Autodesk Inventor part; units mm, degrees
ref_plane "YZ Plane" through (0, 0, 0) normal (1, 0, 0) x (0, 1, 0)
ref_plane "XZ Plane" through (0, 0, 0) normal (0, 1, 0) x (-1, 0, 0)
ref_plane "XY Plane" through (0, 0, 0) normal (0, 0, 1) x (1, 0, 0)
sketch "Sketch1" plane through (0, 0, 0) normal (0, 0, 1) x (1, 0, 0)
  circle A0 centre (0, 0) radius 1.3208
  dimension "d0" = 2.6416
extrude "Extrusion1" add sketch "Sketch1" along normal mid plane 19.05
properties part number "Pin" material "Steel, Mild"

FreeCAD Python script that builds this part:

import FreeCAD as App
import Part
import Sketcher
from FreeCAD import Vector
Q = App.Units.Quantity

doc = App.newDocument("Part")
body = doc.addObject("PartDesign::Body", "Body")

sketch1 = body.newObject("Sketcher::SketchObject", "Sketch")
sketch1.AttachmentSupport = (doc.getObject("XY_Plane"), [""])
sketch1.MapMode = "FlatFace"
sketch1.addGeometry(Part.Circle(Vector(0, 0, 0), Vector(0, 0, 1), 1.3), False)
sketch1.addConstraint([
    Sketcher.Constraint("Coincident", 0, 3, -1, 1),
    Sketcher.Constraint("Diameter", 0, Q("0.104 in")),
])
pad1 = body.newObject("PartDesign::Pad", "Pad")
pad1.Profile = sketch1
pad1.Length = Q("0.75 in")
pad1.Midplane = True

doc.recompute()
